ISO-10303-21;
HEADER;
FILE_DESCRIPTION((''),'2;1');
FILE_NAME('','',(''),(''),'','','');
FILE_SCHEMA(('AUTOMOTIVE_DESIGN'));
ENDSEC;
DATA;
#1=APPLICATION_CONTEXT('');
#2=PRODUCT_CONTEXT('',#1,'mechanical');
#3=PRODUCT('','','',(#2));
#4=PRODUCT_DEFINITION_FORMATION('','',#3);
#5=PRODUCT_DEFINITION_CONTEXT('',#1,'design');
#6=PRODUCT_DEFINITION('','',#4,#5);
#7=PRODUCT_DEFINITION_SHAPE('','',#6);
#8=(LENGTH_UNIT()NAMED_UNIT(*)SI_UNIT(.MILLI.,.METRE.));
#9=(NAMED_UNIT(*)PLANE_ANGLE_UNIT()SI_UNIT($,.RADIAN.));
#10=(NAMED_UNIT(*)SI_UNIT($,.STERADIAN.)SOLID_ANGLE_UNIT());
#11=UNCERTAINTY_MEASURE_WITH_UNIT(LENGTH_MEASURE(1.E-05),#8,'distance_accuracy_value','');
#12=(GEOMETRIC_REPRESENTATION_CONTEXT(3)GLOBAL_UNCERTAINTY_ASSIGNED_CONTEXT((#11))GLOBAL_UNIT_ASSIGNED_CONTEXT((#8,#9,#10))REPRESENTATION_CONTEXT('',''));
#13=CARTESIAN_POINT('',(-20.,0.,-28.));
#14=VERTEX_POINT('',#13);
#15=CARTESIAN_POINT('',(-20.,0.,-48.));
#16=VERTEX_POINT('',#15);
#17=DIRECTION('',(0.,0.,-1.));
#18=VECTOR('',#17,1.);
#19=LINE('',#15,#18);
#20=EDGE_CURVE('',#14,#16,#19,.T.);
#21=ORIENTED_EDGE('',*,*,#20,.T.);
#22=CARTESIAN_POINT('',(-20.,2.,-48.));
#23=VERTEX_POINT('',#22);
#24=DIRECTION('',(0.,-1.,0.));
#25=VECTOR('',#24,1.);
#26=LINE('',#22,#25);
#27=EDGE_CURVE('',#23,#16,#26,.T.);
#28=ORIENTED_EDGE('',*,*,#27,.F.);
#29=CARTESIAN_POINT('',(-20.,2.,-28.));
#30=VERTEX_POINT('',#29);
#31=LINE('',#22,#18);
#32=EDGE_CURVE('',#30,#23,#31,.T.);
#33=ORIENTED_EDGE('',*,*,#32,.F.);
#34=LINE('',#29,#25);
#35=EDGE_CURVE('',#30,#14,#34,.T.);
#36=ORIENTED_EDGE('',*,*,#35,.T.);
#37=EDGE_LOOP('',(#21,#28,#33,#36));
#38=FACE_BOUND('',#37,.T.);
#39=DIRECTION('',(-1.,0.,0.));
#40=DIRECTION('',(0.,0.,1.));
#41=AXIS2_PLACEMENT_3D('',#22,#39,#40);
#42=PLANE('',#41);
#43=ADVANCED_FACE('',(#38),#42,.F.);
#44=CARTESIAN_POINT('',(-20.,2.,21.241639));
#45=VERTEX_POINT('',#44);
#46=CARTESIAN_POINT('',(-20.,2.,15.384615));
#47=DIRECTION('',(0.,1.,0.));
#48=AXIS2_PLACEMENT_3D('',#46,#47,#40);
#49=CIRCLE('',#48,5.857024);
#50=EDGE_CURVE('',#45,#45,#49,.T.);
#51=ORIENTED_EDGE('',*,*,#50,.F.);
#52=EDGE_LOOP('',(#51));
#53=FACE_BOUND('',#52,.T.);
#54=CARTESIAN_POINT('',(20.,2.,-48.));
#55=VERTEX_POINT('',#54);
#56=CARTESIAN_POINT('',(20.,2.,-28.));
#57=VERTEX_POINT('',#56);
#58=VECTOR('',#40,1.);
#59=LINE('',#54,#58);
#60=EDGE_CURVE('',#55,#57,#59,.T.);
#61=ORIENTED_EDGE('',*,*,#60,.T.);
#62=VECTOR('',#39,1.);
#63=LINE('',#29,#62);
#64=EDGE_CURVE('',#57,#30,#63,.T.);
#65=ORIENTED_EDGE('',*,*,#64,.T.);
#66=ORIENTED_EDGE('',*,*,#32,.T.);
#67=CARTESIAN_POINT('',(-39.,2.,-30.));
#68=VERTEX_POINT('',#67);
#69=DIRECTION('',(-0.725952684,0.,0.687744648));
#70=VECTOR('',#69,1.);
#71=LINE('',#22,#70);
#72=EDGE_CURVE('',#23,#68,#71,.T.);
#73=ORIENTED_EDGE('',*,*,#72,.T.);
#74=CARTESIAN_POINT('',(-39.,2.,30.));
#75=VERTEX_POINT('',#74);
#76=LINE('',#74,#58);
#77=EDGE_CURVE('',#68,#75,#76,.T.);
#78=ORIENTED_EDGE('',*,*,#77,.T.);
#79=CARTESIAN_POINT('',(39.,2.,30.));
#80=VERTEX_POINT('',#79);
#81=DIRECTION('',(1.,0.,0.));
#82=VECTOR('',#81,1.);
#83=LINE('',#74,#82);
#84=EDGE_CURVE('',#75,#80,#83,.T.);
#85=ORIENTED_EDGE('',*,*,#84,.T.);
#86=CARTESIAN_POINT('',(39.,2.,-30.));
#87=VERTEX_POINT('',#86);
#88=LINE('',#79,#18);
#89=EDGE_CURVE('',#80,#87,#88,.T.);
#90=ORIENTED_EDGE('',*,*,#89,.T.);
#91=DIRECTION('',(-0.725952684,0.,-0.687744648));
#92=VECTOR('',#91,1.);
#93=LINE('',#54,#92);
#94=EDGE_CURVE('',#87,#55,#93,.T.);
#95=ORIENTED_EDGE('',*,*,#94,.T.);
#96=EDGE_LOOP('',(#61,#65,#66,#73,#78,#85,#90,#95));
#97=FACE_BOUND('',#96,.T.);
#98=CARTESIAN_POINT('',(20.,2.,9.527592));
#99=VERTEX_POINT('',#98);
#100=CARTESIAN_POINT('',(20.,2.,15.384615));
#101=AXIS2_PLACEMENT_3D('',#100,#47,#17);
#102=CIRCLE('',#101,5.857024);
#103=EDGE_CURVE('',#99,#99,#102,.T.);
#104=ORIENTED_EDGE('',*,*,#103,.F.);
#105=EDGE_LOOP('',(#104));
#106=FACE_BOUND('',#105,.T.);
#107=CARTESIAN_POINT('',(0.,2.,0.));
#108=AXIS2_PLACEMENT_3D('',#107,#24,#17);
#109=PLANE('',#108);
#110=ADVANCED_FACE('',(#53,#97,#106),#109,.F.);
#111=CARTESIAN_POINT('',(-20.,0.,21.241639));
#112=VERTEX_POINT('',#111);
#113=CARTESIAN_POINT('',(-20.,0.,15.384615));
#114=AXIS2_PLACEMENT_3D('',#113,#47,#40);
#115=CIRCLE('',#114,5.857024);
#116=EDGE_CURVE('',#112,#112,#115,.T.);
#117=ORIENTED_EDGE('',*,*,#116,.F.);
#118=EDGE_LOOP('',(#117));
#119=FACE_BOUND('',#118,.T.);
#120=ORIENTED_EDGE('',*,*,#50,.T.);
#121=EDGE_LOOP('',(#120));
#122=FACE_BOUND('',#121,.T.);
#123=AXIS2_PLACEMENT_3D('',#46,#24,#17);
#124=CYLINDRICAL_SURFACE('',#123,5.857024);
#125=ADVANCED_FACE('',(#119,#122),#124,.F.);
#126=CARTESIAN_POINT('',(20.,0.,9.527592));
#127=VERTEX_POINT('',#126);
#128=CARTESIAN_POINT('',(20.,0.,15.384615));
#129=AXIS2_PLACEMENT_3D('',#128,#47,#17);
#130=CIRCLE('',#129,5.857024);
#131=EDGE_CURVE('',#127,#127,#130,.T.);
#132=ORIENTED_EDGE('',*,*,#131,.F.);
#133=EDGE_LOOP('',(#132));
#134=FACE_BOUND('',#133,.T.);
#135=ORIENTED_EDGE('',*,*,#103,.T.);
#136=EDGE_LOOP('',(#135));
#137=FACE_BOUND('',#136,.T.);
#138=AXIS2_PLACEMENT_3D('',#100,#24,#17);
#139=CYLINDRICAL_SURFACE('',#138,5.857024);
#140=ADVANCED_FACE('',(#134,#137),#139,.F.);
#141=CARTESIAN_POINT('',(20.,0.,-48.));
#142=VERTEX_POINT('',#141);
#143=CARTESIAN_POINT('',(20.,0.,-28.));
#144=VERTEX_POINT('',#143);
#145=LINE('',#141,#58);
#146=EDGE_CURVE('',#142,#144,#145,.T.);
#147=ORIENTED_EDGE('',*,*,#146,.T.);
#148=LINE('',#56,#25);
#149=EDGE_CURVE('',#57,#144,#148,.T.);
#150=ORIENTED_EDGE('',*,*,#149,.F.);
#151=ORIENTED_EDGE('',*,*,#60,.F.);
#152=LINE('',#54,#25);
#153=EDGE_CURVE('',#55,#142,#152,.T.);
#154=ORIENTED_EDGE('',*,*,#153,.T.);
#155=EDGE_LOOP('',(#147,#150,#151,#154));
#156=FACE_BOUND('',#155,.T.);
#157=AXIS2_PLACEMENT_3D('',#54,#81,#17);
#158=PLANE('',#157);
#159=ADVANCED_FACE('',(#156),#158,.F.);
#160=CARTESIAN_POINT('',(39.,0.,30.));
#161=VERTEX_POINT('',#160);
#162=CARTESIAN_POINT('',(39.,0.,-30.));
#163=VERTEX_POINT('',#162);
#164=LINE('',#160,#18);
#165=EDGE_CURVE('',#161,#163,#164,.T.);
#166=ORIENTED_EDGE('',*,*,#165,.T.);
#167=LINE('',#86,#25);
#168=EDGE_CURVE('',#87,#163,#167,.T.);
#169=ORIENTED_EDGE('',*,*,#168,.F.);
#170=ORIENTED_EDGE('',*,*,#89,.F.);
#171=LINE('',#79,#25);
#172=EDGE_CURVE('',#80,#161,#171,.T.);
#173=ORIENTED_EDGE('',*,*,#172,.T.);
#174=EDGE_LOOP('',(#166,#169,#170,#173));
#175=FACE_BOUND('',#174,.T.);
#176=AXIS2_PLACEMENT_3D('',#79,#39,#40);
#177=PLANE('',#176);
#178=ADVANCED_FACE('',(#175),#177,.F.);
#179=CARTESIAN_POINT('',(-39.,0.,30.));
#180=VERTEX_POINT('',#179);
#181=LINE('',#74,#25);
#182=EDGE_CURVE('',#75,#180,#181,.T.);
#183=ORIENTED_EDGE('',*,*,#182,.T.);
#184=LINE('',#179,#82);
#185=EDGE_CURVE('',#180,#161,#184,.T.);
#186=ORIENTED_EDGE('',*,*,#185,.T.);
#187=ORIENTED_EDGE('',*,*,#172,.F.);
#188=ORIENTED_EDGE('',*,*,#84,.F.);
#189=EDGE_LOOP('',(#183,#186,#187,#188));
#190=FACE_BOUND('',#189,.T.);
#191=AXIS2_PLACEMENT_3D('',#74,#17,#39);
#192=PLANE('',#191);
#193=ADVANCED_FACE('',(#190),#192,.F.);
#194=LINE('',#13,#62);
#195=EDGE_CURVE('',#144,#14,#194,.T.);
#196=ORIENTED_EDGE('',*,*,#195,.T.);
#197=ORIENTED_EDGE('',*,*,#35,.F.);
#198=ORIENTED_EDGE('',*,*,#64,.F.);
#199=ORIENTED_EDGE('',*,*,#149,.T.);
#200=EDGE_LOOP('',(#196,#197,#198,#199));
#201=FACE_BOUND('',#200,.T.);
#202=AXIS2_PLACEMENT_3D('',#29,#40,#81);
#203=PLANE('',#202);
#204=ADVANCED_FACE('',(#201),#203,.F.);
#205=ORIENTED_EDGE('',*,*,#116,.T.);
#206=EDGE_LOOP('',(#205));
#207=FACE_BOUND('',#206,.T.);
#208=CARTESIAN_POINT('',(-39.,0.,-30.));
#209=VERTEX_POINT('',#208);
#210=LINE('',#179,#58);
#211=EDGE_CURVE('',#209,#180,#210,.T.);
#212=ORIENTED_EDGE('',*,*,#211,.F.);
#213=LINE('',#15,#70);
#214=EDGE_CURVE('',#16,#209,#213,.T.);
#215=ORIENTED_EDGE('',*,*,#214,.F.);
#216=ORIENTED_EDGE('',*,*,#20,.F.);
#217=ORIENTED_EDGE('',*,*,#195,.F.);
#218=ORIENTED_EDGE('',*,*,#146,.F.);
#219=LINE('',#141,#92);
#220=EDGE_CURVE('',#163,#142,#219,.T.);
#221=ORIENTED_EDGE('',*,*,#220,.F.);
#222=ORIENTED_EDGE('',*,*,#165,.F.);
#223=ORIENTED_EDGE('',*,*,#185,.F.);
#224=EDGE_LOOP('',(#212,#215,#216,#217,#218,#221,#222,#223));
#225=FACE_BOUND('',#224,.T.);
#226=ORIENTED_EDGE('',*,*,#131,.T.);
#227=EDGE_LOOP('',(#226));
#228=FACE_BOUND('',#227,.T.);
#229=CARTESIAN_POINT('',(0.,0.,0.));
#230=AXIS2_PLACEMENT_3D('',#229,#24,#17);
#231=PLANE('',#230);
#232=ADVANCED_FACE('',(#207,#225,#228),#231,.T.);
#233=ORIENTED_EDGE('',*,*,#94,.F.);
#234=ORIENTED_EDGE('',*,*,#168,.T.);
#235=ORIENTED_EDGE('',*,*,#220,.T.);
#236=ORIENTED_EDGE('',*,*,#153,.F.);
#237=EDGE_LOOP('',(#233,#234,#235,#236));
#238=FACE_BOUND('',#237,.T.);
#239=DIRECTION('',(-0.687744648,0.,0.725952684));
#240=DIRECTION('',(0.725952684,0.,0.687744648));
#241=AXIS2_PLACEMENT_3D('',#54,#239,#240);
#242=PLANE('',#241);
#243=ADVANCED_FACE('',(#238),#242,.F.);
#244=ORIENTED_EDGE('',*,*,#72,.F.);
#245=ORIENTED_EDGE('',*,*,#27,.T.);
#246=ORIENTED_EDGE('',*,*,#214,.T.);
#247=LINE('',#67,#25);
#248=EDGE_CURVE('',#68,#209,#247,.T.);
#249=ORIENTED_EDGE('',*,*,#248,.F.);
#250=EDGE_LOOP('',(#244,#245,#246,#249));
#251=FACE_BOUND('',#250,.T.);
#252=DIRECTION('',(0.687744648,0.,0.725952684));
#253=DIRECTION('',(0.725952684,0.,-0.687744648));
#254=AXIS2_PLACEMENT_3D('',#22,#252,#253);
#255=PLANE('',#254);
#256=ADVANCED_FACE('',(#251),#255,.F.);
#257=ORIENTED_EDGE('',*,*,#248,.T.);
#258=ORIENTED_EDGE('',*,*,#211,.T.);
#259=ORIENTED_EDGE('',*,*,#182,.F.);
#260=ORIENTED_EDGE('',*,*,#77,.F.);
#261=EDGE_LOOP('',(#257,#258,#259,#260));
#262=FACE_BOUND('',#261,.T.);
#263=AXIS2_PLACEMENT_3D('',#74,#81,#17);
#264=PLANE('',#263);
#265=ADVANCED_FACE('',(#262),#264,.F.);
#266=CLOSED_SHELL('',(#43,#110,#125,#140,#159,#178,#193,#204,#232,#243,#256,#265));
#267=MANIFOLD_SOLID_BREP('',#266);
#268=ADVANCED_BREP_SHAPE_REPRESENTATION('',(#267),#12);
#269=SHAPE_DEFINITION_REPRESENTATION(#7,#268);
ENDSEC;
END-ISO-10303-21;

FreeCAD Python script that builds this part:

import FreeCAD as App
import Part
import Sketcher
from FreeCAD import Vector
Q = App.Units.Quantity


def add_polygon(sketch, points):
    """Adds a closed chain of lines whose ends are joined by coincident constraints."""
    first, n = sketch.GeometryCount, len(points)
    for a, b in zip(points, points[1:] + points[:1]):
        sketch.addGeometry(Part.LineSegment(App.Vector(*a, 0), App.Vector(*b, 0)), False)
    for i in range(n):
        sketch.addConstraint(Sketcher.Constraint("Coincident", first + i, 2, first + (i + 1) % n, 1))

doc = App.newDocument("Part")
body = doc.addObject("PartDesign::Body", "Body")

# Sketch on XZ plane
sketch1 = doc.addObject("Sketcher::SketchObject", "Sketch")
body.addObject(sketch1)
sketch1.AttachmentSupport = (doc.XZ_Plane, [""])
sketch1.MapMode = "FlatFace"
add_polygon(sketch1, [(-20, -48), (-39, -30), (-39, 30), (39, 30), (39, -30), (20, -48), (20, -28), (-20, -28)])  # lines 0-7
sketch1.addGeometry(Part.Circle(Vector(-20, 15, 0), Vector(0, 0, 1), 6), False)  # 8
sketch1.addGeometry(Part.Circle(Vector(20, 15, 0), Vector(0, 0, 1), 6), False)  # 9
sketch1.addConstraint([
    Sketcher.Constraint("Vertical", 1),
    Sketcher.Constraint("Horizontal", 2),
    Sketcher.Constraint("Vertical", 3),
    Sketcher.Constraint("Vertical", 5),
    Sketcher.Constraint("Horizontal", 6),
    Sketcher.Constraint("Vertical", 7),
    Sketcher.Constraint("Equal", 8, 9),
    Sketcher.Constraint("Symmetric", 0, 2, 2, 2, -1, 1),
    Sketcher.Constraint("Symmetric", 8, 3, 9, 3, -2),
    Sketcher.Constraint("Symmetric", 4, 2, 7, 2, -2),
    Sketcher.Constraint("Horizontal", 0, 2, 3, 2),
    Sketcher.Constraint("Vertical", 9, 3, 4, 2),
    Sketcher.Constraint("DistanceX", 2, 1, 2, 2, Q("78 mm")),
    Sketcher.Constraint("DistanceX", 6, 2, 6, 1, Q("40 mm")),
    Sketcher.Constraint("DistanceY", 1, 1, 1, 2, Q("60 mm")),
    Sketcher.Constraint("DistanceY", 5, 1, 5, 2, Q("20 mm")),
    Sketcher.Constraint("DistanceY", 4, 2, -1, 1, Q("48 mm")),
    Sketcher.Constraint("Diameter", 8, Q("11.714048 mm")),
    Sketcher.Constraint("DistanceY", -1, 1, 8, 3, Q("15.384615 mm")),
])
pad1 = doc.addObject("PartDesign::Pad", "Pad")
body.addObject(pad1)
pad1.Profile = sketch1
pad1.Length = 2
pad1.Reversed = True

doc.recompute()
